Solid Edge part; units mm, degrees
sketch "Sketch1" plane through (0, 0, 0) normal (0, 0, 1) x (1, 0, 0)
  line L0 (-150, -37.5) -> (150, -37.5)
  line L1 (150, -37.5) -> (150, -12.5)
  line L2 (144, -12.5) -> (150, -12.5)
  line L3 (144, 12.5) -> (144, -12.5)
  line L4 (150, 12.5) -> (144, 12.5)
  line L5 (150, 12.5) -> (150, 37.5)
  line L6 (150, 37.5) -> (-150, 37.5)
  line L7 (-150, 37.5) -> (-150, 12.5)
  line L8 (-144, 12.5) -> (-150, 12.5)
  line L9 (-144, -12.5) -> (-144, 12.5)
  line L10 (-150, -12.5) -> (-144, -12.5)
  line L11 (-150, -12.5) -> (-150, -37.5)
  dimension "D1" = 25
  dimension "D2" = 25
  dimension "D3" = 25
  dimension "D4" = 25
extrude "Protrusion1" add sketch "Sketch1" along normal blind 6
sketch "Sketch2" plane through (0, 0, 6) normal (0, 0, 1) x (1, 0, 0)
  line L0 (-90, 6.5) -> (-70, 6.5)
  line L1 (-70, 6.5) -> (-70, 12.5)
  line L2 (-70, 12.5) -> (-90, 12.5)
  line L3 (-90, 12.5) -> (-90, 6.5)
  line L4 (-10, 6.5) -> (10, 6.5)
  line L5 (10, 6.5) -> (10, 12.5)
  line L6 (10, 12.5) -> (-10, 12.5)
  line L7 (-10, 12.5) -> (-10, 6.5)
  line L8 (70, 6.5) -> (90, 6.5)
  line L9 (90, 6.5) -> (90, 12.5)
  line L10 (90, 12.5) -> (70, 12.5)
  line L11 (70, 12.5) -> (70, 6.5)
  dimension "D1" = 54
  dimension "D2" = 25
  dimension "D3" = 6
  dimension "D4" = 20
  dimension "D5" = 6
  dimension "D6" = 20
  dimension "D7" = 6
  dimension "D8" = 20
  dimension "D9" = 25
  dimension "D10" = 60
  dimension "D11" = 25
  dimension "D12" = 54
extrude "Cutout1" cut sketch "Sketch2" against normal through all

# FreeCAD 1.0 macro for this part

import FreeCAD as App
import Part
import Sketcher
from FreeCAD import Vector


def add_polygon(sketch, points):
    """Adds a closed chain of lines whose ends are joined by coincident constraints."""
    first, n = sketch.GeometryCount, len(points)
    for a, b in zip(points, points[1:] + points[:1]):
        sketch.addGeometry(Part.LineSegment(App.Vector(*a, 0), App.Vector(*b, 0)), False)
    for i in range(n):
        sketch.addConstraint(Sketcher.Constraint("Coincident", first + i, 2, first + (i + 1) % n, 1))

doc = App.newDocument("Part")
body = doc.addObject("PartDesign::Body", "Body")

sketch1 = body.newObject("Sketcher::SketchObject", "Sketch")
sketch1.AttachmentSupport = (doc.getObject("XY_Plane"), [""])
sketch1.MapMode = "FlatFace"
add_polygon(sketch1, [(-150, -12), (-150, -38), (150, -38), (150, -12), (144, -12), (144, 12), (150, 12), (150, 38), (-150, 38), (-150, 12), (-144, 12), (-144, -12)])
sketch1.addConstraint(Sketcher.Constraint("Vertical", 0))
sketch1.addConstraint(Sketcher.Constraint("Horizontal", 1))
sketch1.addConstraint(Sketcher.Constraint("Vertical", 2))
sketch1.addConstraint(Sketcher.Constraint("Horizontal", 3))
sketch1.addConstraint(Sketcher.Constraint("Vertical", 4))
sketch1.addConstraint(Sketcher.Constraint("Horizontal", 5))
sketch1.addConstraint(Sketcher.Constraint("Vertical", 6))
sketch1.addConstraint(Sketcher.Constraint("Horizontal", 7))
sketch1.addConstraint(Sketcher.Constraint("Vertical", 8))
sketch1.addConstraint(Sketcher.Constraint("Horizontal", 9))
sketch1.addConstraint(Sketcher.Constraint("Vertical", 10))
sketch1.addConstraint(Sketcher.Constraint("Horizontal", 11))
sketch1.addConstraint(Sketcher.Constraint("Symmetric", 0, 2, 6, 2, -1, 1))
sketch1.addConstraint(Sketcher.Constraint("Symmetric", 2, 2, 8, 2, -1, 1))
sketch1.addConstraint(Sketcher.Constraint("Symmetric", 4, 2, 10, 2, -1, 1))
sketch1.addConstraint(Sketcher.Constraint("Symmetric", 5, 2, 8, 2, -2))
sketch1.addConstraint(Sketcher.Constraint("Equal", 2, 4))
sketch1.addConstraint(Sketcher.Constraint("DistanceX", -1, 1, 3, 2, 144.0))
sketch1.addConstraint(Sketcher.Constraint("DistanceX", 1, 1, 1, 2, 300.0))
sketch1.addConstraint(Sketcher.Constraint("DistanceY", 0, 2, 0, 1, 25.0))
pad1 = body.newObject("PartDesign::Pad", "Pad")
pad1.Profile = sketch1
pad1.Length = 6

sketch2 = body.newObject("Sketcher::SketchObject", "Sketch001")
sketch2.AttachmentSupport = (doc.getObject("XY_Plane"), [""])
sketch2.MapMode = "FlatFace"
sketch2.AttachmentOffset = App.Placement(Vector(0, 0, 6), App.Rotation())
add_polygon(sketch2, [(-90, 12), (-90, 6), (-70, 6), (-70, 12)])
add_polygon(sketch2, [(-10, 12), (-10, 6), (10, 6), (10, 12)])
add_polygon(sketch2, [(70, 12), (70, 6), (90, 6), (90, 12)])
sketch2.addConstraint(Sketcher.Constraint("Vertical", 0))
sketch2.addConstraint(Sketcher.Constraint("Horizontal", 1))
sketch2.addConstraint(Sketcher.Constraint("Vertical", 2))
sketch2.addConstraint(Sketcher.Constraint("Horizontal", 3))
sketch2.addConstraint(Sketcher.Constraint("Vertical", 4))
sketch2.addConstraint(Sketcher.Constraint("Horizontal", 5))
sketch2.addConstraint(Sketcher.Constraint("Vertical", 6))
sketch2.addConstraint(Sketcher.Constraint("Horizontal", 7))
sketch2.addConstraint(Sketcher.Constraint("Vertical", 8))
sketch2.addConstraint(Sketcher.Constraint("Horizontal", 9))
sketch2.addConstraint(Sketcher.Constraint("Vertical", 10))
sketch2.addConstraint(Sketcher.Constraint("Horizontal", 11))
sketch2.addConstraint(Sketcher.Constraint("Symmetric", 1, 2, 8, 2, -2))
sketch2.addConstraint(Sketcher.Constraint("Symmetric", 3, 2, 10, 2, -2))
sketch2.addConstraint(Sketcher.Constraint("Horizontal", 1, 2, 4, 2))
sketch2.addConstraint(Sketcher.Constraint("Horizontal", 3, 2, 6, 2))
sketch2.addConstraint(Sketcher.Constraint("Equal", 3, 5))
sketch2.addConstraint(Sketcher.Constraint("DistanceX", 0, 2, -1, 1, 90.0))
sketch2.addConstraint(Sketcher.Constraint("DistanceX", 1, 2, -1, 1, 70.0))
sketch2.addConstraint(Sketcher.Constraint("DistanceY", 0, 2, 0, 1, 6.0))
sketch2.addConstraint(Sketcher.Constraint("DistanceX", 4, 2, -1, 1, 10.0))
sketch2.addConstraint(Sketcher.Constraint("DistanceY", -1, 1, 0, 2, 6.5))
pocket1 = body.newObject("PartDesign::Pocket", "Pocket")
pocket1.Profile = sketch2
pocket1.Type = "ThroughAll"

doc.recompute()
